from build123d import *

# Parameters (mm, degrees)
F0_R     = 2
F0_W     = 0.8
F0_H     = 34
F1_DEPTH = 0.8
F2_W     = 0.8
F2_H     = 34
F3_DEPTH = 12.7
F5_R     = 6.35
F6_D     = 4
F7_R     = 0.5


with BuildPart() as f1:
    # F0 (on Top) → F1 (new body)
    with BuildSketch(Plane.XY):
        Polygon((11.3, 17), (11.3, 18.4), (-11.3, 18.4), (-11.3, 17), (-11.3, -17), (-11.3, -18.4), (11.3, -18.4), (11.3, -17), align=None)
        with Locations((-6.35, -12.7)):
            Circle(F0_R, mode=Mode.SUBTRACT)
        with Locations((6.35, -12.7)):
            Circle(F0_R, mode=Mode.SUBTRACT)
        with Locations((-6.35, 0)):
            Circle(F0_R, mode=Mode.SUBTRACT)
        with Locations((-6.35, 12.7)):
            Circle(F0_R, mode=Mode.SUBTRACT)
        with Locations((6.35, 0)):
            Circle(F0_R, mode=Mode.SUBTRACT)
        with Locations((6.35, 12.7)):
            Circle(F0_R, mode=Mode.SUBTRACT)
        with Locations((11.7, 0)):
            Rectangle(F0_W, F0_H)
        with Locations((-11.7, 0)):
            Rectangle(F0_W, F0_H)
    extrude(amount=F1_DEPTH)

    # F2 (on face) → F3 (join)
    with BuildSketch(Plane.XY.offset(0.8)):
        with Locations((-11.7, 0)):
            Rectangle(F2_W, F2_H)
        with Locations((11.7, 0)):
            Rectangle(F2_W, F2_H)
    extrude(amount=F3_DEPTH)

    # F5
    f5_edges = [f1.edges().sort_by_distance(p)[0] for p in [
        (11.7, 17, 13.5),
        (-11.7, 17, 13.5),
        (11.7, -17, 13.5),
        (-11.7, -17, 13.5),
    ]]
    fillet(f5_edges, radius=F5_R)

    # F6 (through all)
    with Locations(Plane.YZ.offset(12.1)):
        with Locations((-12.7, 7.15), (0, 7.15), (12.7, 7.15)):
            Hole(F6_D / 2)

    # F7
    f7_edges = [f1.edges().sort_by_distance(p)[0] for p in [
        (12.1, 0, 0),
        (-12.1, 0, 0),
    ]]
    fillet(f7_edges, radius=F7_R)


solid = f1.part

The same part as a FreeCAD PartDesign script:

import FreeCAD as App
import Part
import Sketcher

V = App.Vector
Q = App.Units.Quantity


def edges_at(feature, points):
    """Names of the edges that pass closest to the given points."""
    edges = feature.Shape.Edges
    near = lambda p: min(range(len(edges)), key=lambda i: edges[i].distToShape(Part.Vertex(*p))[0])
    return sorted({f"Edge{near(p) + 1}" for p in points})

doc = App.newDocument("Part")
body = doc.addObject("PartDesign::Body", "Body")

sketch1 = doc.addObject("Sketcher::SketchObject", "Sketch")
body.addObject(sketch1)
sketch1.AttachmentSupport = (doc.XY_Plane, [""])
sketch1.MapMode = "FlatFace"
sketch1.addGeometry([
    Part.LineSegment(V(11.3, 18.4, 0), V(-11.3, 18.4, 0)),
    Part.LineSegment(V(-11.3, 18.4, 0), V(-11.3, 17, 0)),
    Part.LineSegment(V(-11.3, 17, 0), V(-12.1, 17, 0)),
    Part.LineSegment(V(-12.1, 17, 0), V(-12.1, -17, 0)),
    Part.LineSegment(V(-12.1, -17, 0), V(-11.3, -17, 0)),
    Part.LineSegment(V(-11.3, -17, 0), V(-11.3, -18.4, 0)),
    Part.LineSegment(V(-11.3, -18.4, 0), V(11.3, -18.4, 0)),
    Part.LineSegment(V(11.3, -18.4, 0), V(11.3, -17, 0)),
    Part.LineSegment(V(11.3, -17, 0), V(12.1, -17, 0)),
    Part.LineSegment(V(12.1, -17, 0), V(12.1, 17, 0)),
    Part.LineSegment(V(12.1, 17, 0), V(11.3, 17, 0)),
    Part.LineSegment(V(11.3, 17, 0), V(11.3, 18.4, 0)),
    Part.Circle(V(-6.3, -12.7, 0), V(0, 0, 1), 2),
    Part.Circle(V(6.3, -12.7, 0), V(0, 0, 1), 2),
    Part.Circle(V(-6.3, 0, 0), V(0, 0, 1), 2),
    Part.Circle(V(-6.3, 12.7, 0), V(0, 0, 1), 2),
    Part.Circle(V(6.3, 0, 0), V(0, 0, 1), 2),
    Part.Circle(V(6.3, 12.7, 0), V(0, 0, 1), 2),
], False)
sketch1.addConstraint([
    Sketcher.Constraint("Coincident", 0, 2, 1, 1),
    Sketcher.Constraint("Coincident", 1, 2, 2, 1),
    Sketcher.Constraint("Coincident", 2, 2, 3, 1),
    Sketcher.Constraint("Coincident", 3, 2, 4, 1),
    Sketcher.Constraint("Coincident", 4, 2, 5, 1),
    Sketcher.Constraint("Coincident", 5, 2, 6, 1),
    Sketcher.Constraint("Coincident", 6, 2, 7, 1),
    Sketcher.Constraint("Coincident", 7, 2, 8, 1),
    Sketcher.Constraint("Coincident", 8, 2, 9, 1),
    Sketcher.Constraint("Coincident", 9, 2, 10, 1),
    Sketcher.Constraint("Coincident", 10, 2, 11, 1),
    Sketcher.Constraint("Coincident", 11, 2, 0, 1),
    Sketcher.Constraint("Horizontal", 0),
    Sketcher.Constraint("Vertical", 1),
    Sketcher.Constraint("Horizontal", 2),
    Sketcher.Constraint("Vertical", 3),
    Sketcher.Constraint("Horizontal", 4),
    Sketcher.Constraint("Vertical", 5),
    Sketcher.Constraint("Horizontal", 6),
    Sketcher.Constraint("Vertical", 7),
    Sketcher.Constraint("Horizontal", 8),
    Sketcher.Constraint("Vertical", 9),
    Sketcher.Constraint("Horizontal", 10),
    Sketcher.Constraint("Vertical", 11),
    Sketcher.Constraint("Equal", 12, 13),
    Sketcher.Constraint("Equal", 13, 14),
    Sketcher.Constraint("Equal", 14, 15),
    Sketcher.Constraint("Equal", 15, 16),
    Sketcher.Constraint("Equal", 16, 17),
    Sketcher.Constraint("Symmetric", 13, 3, 15, 3, -1, 1),
    Sketcher.Constraint("Symmetric", 14, 3, 16, 3, -1, 1),
    Sketcher.Constraint("Symmetric", 12, 3, 17, 3, -1, 1),
    Sketcher.Constraint("Symmetric", 0, 2, 6, 2, -1, 1),
    Sketcher.Constraint("Symmetric", 2, 2, 8, 2, -1, 1),
    Sketcher.Constraint("Symmetric", 4, 2, 10, 2, -1, 1),
    Sketcher.Constraint("Symmetric", 12, 3, 13, 3, -2),
    Sketcher.Constraint("Symmetric", 4, 2, 7, 2, -2),
    Sketcher.Constraint("PointOnObject", 14, 3, -1),
    Sketcher.Constraint("Vertical", 12, 3, 14, 3),
    Sketcher.Constraint("Diameter", 12, Q("4 mm")),
    Sketcher.Constraint("DistanceY", 3, 2, 3, 1, Q("34 mm")),
    Sketcher.Constraint("DistanceX", 0, 2, 0, 1, Q("22.6 mm")),
    Sketcher.Constraint("DistanceX", 2, 2, 2, 1, Q("0.8 mm")),
    Sketcher.Constraint("DistanceY", 1, 2, 1, 1, Q("1.4 mm")),
    Sketcher.Constraint("DistanceY", 12, 3, -1, 1, Q("12.7 mm")),
    Sketcher.Constraint("DistanceX", 12, 3, 13, 3, Q("12.7 mm")),
])
pad1 = doc.addObject("PartDesign::Pad", "Pad")
body.addObject(pad1)
pad1.Profile = sketch1
pad1.Length = 0.8

sketch2 = doc.addObject("Sketcher::SketchObject", "Sketch001")
body.addObject(sketch2)
sketch2.AttachmentSupport = (doc.XY_Plane, [""])
sketch2.MapMode = "FlatFace"
sketch2.AttachmentOffset = App.Placement(V(0, 0, 0.8), App.Rotation())
sketch2.addGeometry([
    Part.LineSegment(V(-12.1, 17, 0), V(-12.1, -17, 0)),
    Part.LineSegment(V(-12.1, -17, 0), V(-11.3, -17, 0)),
    Part.LineSegment(V(-11.3, -17, 0), V(-11.3, 17, 0)),
    Part.LineSegment(V(-11.3, 17, 0), V(-12.1, 17, 0)),
    Part.LineSegment(V(11.3, 17, 0), V(11.3, -17, 0)),
    Part.LineSegment(V(11.3, -17, 0), V(12.1, -17, 0)),
    Part.LineSegment(V(12.1, -17, 0), V(12.1, 17, 0)),
    Part.LineSegment(V(12.1, 17, 0), V(11.3, 17, 0)),
], False)
sketch2.addConstraint([
    Sketcher.Constraint("Coincident", 0, 2, 1, 1),
    Sketcher.Constraint("Coincident", 1, 2, 2, 1),
    Sketcher.Constraint("Coincident", 2, 2, 3, 1),
    Sketcher.Constraint("Coincident", 3, 2, 0, 1),
    Sketcher.Constraint("Coincident", 4, 2, 5, 1),
    Sketcher.Constraint("Coincident", 5, 2, 6, 1),
    Sketcher.Constraint("Coincident", 6, 2, 7, 1),
    Sketcher.Constraint("Coincident", 7, 2, 4, 1),
    Sketcher.Constraint("Vertical", 0),
    Sketcher.Constraint("Horizontal", 1),
    Sketcher.Constraint("Vertical", 2),
    Sketcher.Constraint("Horizontal", 3),
    Sketcher.Constraint("Vertical", 4),
    Sketcher.Constraint("Horizontal", 5),
    Sketcher.Constraint("Vertical", 6),
    Sketcher.Constraint("Horizontal", 7),
    Sketcher.Constraint("Symmetric", 2, 2, 4, 2, -1, 1),
    Sketcher.Constraint("Symmetric", 0, 2, 6, 2, -1, 1),
    Sketcher.Constraint("Horizontal", 1, 2, 4, 2),
    Sketcher.Constraint("DistanceY", 0, 2, 0, 1, Q("34 mm")),
    Sketcher.Constraint("DistanceX", 1, 1, 1, 2, Q("0.8 mm")),
    Sketcher.Constraint("DistanceX", 0, 2, -1, 1, Q("12.1 mm")),
])
pad2 = doc.addObject("PartDesign::Pad", "Pad001")
body.addObject(pad2)
pad2.Profile = sketch2
pad2.Length = 12.7
doc.recompute()

fillet = doc.addObject("PartDesign::Fillet", "Fillet")
body.addObject(fillet)
fillet.Base = (pad2, edges_at(pad2, [
    (11.7, 17, 13.5),
    (-11.7, 17, 13.5),
    (11.7, -17, 13.5),
    (-11.7, -17, 13.5),
]))
fillet.Radius = 6.35

sketch3 = doc.addObject("Sketcher::SketchObject", "Sketch002")
body.addObject(sketch3)
sketch3.AttachmentSupport = (doc.YZ_Plane, [""])
sketch3.MapMode = "FlatFace"
sketch3.AttachmentOffset = App.Placement(V(0, 0, 12.1), App.Rotation())
sketch3.addGeometry([
    Part.Circle(V(-12.7, 7.2, 0), V(0, 0, 1), 2),
    Part.Circle(V(0, 7.2, 0), V(0, 0, 1), 2),
    Part.Circle(V(12.7, 7.2, 0), V(0, 0, 1), 2),
], False)
sketch3.addConstraint([
    Sketcher.Constraint("Equal", 0, 1),
    Sketcher.Constraint("Equal", 1, 2),
    Sketcher.Constraint("Symmetric", 0, 3, 2, 3, -2),
    Sketcher.Constraint("PointOnObject", 1, 3, -2),
    Sketcher.Constraint("Horizontal", 0, 3, 1, 3),
    Sketcher.Constraint("Diameter", 0, Q("4 mm")),
    Sketcher.Constraint("DistanceX", 0, 3, -1, 1, Q("12.7 mm")),
    Sketcher.Constraint("DistanceY", -1, 1, 0, 3, Q("7.15 mm")),
])
doc.recompute()
hole = doc.addObject("PartDesign::Hole", "Hole")
body.addObject(hole)
hole.Profile = sketch3
hole.ThreadType = "None"
hole.Diameter = 4
hole.DepthType = "ThroughAll"
doc.recompute()

fillet2 = doc.addObject("PartDesign::Fillet", "Fillet001")
body.addObject(fillet2)
fillet2.Base = (hole, edges_at(hole, [(12.1, 0, 0), (-12.1, 0, 0)]))
fillet2.Radius = 0.5

doc.recompute()
